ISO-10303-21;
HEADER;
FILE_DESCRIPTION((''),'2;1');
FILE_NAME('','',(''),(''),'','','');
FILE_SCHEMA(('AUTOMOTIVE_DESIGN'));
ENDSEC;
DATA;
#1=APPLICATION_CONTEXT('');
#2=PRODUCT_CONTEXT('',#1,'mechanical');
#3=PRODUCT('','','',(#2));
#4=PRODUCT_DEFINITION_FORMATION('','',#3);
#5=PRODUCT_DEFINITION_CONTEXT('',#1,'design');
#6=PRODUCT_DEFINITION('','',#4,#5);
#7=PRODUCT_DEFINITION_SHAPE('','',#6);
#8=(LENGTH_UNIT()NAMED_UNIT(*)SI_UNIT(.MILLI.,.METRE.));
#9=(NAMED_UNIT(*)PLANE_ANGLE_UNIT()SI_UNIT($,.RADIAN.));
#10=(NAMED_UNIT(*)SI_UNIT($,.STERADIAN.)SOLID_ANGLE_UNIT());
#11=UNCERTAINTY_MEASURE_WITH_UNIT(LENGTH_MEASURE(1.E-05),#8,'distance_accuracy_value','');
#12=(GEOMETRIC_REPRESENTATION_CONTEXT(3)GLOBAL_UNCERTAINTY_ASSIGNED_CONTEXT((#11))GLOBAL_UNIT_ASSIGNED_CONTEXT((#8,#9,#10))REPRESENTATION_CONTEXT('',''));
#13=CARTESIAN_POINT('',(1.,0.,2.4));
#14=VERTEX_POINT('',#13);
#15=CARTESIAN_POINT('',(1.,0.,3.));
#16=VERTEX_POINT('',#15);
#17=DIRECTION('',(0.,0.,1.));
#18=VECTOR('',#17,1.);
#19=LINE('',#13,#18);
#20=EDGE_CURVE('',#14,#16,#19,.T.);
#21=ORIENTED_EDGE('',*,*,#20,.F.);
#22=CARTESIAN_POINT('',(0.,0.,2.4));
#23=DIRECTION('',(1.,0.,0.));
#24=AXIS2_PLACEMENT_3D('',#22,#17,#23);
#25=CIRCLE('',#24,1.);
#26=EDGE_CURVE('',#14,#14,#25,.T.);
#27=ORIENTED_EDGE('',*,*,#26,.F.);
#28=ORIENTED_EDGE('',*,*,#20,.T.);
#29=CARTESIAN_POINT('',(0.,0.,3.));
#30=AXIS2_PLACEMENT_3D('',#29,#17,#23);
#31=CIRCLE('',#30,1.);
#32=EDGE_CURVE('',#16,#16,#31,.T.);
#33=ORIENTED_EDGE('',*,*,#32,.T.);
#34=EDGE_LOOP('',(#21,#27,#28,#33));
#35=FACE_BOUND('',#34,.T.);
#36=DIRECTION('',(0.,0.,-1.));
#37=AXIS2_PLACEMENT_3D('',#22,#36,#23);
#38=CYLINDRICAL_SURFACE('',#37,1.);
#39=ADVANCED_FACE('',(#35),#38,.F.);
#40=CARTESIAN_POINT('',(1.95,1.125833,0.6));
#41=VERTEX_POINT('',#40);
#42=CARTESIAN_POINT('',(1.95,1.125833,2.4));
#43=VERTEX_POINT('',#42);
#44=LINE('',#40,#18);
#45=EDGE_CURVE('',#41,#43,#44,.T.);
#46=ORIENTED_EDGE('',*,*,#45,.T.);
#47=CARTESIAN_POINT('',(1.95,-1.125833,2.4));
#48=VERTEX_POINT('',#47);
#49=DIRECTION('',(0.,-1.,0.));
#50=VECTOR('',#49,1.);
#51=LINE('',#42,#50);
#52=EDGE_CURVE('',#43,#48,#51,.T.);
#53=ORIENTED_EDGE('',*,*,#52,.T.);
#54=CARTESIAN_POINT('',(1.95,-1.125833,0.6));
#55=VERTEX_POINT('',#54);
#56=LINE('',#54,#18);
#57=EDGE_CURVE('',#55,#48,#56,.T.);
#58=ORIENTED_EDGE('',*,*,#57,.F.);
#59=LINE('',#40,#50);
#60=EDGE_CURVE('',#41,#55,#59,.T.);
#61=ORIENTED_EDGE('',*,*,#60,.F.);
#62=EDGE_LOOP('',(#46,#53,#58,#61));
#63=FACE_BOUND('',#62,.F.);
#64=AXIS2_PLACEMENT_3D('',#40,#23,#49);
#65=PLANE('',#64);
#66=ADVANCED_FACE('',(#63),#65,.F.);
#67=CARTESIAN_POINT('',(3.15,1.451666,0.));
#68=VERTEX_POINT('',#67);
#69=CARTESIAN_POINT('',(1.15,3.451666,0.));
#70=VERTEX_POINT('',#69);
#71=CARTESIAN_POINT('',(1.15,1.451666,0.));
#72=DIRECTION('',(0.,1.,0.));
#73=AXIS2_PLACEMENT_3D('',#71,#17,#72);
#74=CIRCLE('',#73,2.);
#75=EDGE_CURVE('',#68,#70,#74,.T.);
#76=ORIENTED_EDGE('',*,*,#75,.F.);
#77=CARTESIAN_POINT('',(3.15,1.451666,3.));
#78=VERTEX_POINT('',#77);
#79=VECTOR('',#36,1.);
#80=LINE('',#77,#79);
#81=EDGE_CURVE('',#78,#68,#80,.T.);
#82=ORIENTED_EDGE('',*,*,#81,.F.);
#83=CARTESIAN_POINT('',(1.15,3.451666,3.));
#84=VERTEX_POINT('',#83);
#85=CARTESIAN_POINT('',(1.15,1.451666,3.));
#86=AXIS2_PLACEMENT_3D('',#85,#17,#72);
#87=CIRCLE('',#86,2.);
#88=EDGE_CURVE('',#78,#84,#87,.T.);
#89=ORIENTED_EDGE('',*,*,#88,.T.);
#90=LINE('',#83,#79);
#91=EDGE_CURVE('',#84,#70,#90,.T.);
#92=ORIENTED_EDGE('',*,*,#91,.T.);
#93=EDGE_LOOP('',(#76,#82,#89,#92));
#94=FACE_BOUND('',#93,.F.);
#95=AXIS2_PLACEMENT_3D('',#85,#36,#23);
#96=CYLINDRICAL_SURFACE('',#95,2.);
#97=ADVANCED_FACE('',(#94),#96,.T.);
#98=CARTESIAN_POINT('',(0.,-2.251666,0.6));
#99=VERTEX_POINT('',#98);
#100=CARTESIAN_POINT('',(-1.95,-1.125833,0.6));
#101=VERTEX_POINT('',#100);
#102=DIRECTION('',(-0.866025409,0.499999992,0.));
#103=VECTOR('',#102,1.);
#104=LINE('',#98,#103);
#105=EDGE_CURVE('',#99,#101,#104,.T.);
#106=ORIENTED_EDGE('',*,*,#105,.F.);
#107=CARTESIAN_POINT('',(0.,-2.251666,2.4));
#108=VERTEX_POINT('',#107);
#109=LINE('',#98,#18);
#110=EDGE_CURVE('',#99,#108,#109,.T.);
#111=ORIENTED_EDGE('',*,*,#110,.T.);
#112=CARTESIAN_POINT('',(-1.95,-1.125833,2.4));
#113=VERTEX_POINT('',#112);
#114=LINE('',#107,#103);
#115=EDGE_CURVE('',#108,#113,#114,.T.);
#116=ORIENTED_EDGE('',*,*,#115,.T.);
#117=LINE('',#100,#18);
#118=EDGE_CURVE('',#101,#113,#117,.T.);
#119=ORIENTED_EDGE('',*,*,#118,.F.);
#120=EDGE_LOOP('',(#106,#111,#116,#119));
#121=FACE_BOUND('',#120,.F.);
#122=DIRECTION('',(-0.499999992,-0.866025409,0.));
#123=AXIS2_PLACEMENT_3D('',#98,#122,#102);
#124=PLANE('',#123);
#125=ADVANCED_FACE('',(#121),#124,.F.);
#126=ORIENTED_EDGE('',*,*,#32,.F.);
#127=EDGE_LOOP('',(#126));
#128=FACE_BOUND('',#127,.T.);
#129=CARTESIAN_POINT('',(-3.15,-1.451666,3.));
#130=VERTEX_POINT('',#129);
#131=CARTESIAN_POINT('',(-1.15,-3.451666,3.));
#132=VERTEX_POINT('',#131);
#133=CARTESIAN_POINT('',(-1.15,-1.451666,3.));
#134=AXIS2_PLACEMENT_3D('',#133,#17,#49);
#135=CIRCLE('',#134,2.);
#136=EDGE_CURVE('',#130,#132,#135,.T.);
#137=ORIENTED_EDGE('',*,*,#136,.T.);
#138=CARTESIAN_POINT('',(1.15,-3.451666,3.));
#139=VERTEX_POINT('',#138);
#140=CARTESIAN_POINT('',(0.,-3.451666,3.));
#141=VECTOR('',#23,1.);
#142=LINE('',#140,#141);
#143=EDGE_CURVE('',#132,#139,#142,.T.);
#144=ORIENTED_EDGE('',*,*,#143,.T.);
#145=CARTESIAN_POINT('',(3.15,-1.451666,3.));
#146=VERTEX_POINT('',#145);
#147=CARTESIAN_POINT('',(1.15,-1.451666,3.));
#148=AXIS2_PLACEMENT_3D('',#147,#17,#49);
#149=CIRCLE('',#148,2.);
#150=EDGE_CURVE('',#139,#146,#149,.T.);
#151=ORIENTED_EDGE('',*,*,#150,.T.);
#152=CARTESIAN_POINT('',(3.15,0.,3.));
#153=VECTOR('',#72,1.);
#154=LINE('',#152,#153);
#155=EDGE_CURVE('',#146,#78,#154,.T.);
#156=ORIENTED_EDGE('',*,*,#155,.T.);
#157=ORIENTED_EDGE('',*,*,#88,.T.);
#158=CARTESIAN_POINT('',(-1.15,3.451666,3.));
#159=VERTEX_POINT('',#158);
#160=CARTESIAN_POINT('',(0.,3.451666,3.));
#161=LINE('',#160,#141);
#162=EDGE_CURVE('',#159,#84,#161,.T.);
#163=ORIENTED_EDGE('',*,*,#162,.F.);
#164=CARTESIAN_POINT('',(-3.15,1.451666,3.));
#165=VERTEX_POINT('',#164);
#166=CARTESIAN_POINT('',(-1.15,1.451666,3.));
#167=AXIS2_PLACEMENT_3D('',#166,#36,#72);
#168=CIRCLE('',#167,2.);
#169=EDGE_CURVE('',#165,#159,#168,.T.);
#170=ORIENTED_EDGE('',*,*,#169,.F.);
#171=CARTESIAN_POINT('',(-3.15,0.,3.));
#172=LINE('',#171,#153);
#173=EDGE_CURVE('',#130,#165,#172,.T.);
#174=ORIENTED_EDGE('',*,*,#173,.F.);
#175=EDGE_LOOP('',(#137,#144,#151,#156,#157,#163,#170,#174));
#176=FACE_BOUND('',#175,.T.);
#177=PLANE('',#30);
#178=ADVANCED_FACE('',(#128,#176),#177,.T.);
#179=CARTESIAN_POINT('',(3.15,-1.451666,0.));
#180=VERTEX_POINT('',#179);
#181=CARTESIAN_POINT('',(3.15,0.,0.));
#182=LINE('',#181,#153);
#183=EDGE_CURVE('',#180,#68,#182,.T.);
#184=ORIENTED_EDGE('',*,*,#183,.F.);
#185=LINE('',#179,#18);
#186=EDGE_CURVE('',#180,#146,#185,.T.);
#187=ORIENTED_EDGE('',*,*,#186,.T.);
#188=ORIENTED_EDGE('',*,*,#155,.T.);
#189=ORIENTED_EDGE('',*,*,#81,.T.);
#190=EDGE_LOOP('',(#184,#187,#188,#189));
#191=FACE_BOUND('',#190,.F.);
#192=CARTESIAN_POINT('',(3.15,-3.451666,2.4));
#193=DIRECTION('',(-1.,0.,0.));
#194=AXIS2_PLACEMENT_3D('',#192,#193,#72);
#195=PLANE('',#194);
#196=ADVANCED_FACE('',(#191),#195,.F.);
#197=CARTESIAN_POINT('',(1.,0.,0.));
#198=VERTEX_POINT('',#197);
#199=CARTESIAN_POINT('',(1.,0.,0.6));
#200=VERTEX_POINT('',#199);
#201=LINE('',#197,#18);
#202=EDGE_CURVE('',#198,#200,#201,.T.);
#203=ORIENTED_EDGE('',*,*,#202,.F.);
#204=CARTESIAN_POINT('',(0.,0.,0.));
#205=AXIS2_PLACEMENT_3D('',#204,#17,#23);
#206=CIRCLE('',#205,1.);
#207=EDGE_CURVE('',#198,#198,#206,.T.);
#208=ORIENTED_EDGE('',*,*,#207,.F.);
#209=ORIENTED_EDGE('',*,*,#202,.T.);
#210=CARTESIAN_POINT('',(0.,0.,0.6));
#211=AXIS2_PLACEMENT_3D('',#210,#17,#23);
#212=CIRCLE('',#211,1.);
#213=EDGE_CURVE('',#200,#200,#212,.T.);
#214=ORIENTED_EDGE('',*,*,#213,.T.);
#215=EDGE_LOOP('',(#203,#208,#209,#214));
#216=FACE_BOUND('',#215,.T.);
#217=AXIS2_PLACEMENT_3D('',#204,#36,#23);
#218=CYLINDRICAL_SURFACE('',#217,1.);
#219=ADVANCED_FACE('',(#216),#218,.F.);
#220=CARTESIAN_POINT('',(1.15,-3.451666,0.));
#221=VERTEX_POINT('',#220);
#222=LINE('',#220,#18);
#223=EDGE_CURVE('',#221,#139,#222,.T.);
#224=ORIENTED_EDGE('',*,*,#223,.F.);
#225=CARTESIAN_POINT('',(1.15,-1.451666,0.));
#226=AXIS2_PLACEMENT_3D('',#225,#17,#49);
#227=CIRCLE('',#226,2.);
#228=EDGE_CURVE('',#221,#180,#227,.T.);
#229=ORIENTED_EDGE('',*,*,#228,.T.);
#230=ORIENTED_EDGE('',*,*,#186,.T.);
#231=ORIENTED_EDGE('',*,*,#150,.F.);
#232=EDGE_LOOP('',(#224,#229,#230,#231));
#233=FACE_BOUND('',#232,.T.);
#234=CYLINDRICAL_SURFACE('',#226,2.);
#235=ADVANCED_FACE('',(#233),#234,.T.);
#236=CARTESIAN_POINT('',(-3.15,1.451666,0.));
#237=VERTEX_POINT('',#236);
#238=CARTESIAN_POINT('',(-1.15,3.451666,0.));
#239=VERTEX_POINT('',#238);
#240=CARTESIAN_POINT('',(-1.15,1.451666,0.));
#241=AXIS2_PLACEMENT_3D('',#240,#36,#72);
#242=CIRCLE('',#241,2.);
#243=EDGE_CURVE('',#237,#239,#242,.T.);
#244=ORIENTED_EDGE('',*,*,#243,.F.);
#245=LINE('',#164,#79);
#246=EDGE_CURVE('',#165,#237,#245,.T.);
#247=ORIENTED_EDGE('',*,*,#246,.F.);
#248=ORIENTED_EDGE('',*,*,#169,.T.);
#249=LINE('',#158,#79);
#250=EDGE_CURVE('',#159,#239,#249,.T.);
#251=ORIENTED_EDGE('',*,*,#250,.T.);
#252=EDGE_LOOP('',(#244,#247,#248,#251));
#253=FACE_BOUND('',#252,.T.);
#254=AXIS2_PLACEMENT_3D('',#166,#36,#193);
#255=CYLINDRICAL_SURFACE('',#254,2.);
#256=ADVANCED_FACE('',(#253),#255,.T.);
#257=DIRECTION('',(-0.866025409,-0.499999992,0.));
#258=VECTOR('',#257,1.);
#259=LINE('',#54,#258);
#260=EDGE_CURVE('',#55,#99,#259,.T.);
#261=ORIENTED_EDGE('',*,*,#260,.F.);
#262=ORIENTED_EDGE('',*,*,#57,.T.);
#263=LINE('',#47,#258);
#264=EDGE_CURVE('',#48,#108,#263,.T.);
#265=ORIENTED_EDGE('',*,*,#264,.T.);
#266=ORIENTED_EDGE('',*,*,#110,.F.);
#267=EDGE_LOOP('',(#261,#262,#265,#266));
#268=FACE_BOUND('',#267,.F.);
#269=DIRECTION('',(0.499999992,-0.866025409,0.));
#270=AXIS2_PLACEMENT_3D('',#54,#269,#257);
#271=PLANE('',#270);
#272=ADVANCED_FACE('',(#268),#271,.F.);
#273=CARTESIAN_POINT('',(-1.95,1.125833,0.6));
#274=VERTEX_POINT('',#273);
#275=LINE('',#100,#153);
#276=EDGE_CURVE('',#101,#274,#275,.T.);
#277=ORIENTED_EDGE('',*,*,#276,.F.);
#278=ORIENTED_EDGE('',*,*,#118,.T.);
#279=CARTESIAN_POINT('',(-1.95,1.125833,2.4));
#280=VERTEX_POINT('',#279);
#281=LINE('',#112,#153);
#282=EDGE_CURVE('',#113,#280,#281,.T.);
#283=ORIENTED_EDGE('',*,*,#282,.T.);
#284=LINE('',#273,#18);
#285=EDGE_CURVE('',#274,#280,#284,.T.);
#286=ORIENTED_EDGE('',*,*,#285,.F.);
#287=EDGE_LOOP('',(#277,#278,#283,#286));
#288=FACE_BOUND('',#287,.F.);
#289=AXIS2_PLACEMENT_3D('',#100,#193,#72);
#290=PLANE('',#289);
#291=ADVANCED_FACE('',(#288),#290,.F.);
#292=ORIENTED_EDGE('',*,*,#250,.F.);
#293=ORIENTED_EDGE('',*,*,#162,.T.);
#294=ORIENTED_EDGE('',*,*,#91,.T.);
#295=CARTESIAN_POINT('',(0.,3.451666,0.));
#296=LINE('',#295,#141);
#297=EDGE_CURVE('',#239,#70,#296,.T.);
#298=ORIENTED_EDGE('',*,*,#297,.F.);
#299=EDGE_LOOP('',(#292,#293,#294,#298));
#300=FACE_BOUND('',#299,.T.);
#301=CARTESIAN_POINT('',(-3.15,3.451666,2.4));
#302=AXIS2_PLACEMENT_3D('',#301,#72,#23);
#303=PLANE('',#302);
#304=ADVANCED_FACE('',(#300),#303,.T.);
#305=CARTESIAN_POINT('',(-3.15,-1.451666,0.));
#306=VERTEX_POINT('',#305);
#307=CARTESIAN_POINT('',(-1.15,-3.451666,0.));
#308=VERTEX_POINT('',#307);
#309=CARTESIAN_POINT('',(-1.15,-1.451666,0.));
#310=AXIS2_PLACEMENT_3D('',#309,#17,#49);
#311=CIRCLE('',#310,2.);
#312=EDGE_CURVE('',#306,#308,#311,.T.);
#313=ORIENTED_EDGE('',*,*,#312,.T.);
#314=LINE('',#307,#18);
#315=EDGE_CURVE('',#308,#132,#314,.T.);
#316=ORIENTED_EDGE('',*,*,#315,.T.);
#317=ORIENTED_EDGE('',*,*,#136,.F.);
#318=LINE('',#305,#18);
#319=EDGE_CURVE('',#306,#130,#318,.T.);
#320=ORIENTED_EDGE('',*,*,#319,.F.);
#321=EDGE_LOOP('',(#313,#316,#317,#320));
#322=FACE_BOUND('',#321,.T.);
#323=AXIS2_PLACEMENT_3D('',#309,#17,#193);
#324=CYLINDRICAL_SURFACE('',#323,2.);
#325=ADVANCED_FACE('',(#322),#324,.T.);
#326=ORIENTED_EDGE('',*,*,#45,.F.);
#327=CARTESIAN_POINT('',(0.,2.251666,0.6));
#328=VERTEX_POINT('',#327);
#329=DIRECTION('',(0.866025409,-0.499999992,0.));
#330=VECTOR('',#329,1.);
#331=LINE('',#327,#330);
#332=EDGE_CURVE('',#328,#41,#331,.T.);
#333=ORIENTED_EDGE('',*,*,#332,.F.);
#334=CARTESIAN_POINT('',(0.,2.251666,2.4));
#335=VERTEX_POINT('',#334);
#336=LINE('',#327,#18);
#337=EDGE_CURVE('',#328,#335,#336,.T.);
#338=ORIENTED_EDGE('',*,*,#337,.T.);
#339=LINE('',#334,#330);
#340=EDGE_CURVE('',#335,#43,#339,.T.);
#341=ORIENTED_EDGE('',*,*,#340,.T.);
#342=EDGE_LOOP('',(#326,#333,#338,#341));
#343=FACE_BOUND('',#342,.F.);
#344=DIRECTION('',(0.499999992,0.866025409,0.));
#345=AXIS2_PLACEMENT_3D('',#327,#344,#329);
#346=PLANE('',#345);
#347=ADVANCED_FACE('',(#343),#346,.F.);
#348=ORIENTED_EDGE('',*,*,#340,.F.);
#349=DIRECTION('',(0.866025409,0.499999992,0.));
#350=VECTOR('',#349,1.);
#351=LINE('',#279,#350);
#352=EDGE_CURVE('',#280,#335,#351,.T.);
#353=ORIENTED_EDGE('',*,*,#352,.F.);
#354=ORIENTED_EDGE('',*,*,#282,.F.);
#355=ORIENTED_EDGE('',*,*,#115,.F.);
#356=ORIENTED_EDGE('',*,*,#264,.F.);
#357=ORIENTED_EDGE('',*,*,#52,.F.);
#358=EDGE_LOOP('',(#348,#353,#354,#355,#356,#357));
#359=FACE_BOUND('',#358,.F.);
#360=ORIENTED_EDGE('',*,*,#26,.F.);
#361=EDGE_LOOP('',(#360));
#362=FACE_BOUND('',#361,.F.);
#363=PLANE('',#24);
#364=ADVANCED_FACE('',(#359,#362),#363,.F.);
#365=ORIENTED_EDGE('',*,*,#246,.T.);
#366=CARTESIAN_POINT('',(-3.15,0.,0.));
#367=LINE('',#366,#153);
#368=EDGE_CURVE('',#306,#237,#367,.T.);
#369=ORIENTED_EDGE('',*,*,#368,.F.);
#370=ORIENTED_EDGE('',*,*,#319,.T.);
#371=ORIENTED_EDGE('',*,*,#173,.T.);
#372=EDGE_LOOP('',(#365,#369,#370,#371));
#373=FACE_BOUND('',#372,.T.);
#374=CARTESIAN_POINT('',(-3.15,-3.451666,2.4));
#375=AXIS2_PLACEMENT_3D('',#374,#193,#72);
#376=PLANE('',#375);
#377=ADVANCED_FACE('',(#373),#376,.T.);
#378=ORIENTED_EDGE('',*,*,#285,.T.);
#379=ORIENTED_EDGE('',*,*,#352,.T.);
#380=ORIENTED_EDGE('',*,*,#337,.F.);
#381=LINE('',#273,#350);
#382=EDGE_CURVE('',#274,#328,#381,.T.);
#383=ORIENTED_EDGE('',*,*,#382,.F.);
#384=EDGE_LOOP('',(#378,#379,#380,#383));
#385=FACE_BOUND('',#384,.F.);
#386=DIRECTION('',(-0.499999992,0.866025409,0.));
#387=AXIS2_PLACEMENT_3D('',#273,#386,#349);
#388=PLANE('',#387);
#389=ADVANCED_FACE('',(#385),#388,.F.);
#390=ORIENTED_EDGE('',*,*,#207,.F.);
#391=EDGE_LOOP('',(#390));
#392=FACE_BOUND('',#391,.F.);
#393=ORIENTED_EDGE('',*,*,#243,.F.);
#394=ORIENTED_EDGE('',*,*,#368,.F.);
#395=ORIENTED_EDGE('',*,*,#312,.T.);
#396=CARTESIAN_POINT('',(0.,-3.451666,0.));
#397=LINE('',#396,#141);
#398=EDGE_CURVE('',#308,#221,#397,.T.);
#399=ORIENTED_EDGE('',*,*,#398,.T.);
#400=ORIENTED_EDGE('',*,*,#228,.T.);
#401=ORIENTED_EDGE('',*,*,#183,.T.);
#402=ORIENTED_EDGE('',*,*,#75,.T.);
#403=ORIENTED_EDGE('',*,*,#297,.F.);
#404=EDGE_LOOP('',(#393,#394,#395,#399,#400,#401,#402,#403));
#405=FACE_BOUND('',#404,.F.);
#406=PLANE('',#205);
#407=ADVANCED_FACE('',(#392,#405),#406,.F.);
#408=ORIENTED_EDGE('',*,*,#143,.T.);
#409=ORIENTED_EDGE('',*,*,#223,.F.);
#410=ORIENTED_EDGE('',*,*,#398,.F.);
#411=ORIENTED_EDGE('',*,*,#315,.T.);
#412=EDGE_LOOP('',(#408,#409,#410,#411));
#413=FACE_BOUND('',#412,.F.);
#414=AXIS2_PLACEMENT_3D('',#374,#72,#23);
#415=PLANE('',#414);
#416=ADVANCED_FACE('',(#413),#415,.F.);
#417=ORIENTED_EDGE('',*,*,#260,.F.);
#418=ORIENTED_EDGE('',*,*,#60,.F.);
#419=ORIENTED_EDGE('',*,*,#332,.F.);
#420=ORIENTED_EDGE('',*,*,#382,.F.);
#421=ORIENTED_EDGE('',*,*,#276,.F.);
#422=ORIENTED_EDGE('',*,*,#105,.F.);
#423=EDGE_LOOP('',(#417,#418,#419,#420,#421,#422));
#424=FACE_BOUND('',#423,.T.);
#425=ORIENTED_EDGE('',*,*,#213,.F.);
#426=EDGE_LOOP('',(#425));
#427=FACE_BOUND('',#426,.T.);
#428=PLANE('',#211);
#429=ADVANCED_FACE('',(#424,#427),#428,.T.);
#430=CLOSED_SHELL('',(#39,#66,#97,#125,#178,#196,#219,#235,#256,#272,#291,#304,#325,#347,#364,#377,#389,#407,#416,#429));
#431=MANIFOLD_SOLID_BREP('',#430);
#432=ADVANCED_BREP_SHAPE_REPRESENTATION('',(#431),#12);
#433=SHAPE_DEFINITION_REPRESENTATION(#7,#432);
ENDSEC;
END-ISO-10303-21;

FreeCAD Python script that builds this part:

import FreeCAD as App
import Part
import Sketcher
from FreeCAD import Vector
Q = App.Units.Quantity


def edges_at(feature, points):
    """Names of the edges that pass closest to the given points."""
    edges = feature.Shape.Edges
    near = lambda p: min(range(len(edges)), key=lambda i: edges[i].distToShape(Part.Vertex(*p))[0])
    return sorted({f"Edge{near(p) + 1}" for p in points})


def add_polygon(sketch, points):
    """Adds a closed chain of lines whose ends are joined by coincident constraints."""
    first, n = sketch.GeometryCount, len(points)
    for a, b in zip(points, points[1:] + points[:1]):
        sketch.addGeometry(Part.LineSegment(App.Vector(*a, 0), App.Vector(*b, 0)), False)
    for i in range(n):
        sketch.addConstraint(Sketcher.Constraint("Coincident", first + i, 2, first + (i + 1) % n, 1))

doc = App.newDocument("Part")
body = doc.addObject("PartDesign::Body", "Body")

# Sketch on XY plane
sketch1 = body.newObject("Sketcher::SketchObject", "Sketch")
sketch1.AttachmentSupport = (doc.getObject("XY_Plane"), [""])
sketch1.MapMode = "FlatFace"
add_polygon(sketch1, [(-3.1, 3.5), (-3.1, -3.5), (3.1, -3.5), (3.1, 3.5)])  # lines 0-3
sketch1.addGeometry(Part.Circle(Vector(0, 0, 0), Vector(0, 0, 1), 1), False)  # 4
sketch1.addConstraint([
    Sketcher.Constraint("Vertical", 0),
    Sketcher.Constraint("Horizontal", 1),
    Sketcher.Constraint("Vertical", 2),
    Sketcher.Constraint("Horizontal", 3),
    Sketcher.Constraint("Coincident", 4, 3, -1, 1),
    Sketcher.Constraint("Symmetric", 0, 2, 2, 2, -1, 1),
    Sketcher.Constraint("Diameter", 4, 2.0),
    Sketcher.Constraint("DistanceX", 1, 1, 1, 2, 6.3),
    Sketcher.Constraint("DistanceY", 0, 2, 0, 1, 6.903332),
])
pad1 = body.newObject("PartDesign::Pad", "Pad")
pad1.Profile = sketch1
pad1.Length = 0.6

# Sketch on XY plane
sketch2 = body.newObject("Sketcher::SketchObject", "Sketch001")
sketch2.AttachmentSupport = (doc.getObject("XY_Plane"), [""])
sketch2.MapMode = "FlatFace"
sketch2.AttachmentOffset = App.Placement(Vector(0, 0, 0.6), App.Rotation())
add_polygon(sketch2, [(-3.1, 3.5), (-3.1, -3.5), (3.1, -3.5), (3.1, 3.5)])  # lines 0-3
add_polygon(sketch2, [(-1.9, -1.1), (-1.9, 1.1), (0, 2.3), (1.9, 1.1), (1.9, -1.1), (0, -2.3)])  # lines 4-9
sketch2.addConstraint([
    Sketcher.Constraint("Vertical", 0),
    Sketcher.Constraint("Horizontal", 1),
    Sketcher.Constraint("Vertical", 2),
    Sketcher.Constraint("Horizontal", 3),
    Sketcher.Constraint("Vertical", 4),
    Sketcher.Constraint("Vertical", 7),
    Sketcher.Constraint("Symmetric", 0, 2, 2, 2, -1, 1),
    Sketcher.Constraint("Symmetric", 4, 2, 7, 2, -1, 1),
    Sketcher.Constraint("Symmetric", 5, 2, 8, 2, -1, 1),
    Sketcher.Constraint("PointOnObject", 5, 2, -2),
    Sketcher.Constraint("Parallel", 6, 9),
    Sketcher.Constraint("Horizontal", 4, 2, 6, 2),
    Sketcher.Constraint("Angle", 5, Q("29.999999 deg")),
    Sketcher.Constraint("DistanceX", 1, 1, 1, 2, 6.3),
    Sketcher.Constraint("DistanceX", 3, 2, 4, 2, 1.2),
    Sketcher.Constraint("DistanceY", 5, 2, 2, 2, 1.2),
    Sketcher.Constraint("DistanceY", 0, 2, 0, 1, 6.903332),
])
pad2 = body.newObject("PartDesign::Pad", "Pad001")
pad2.Profile = sketch2
pad2.Length = 1.8

# Sketch on XY plane
sketch3 = body.newObject("Sketcher::SketchObject", "Sketch002")
sketch3.AttachmentSupport = (doc.getObject("XY_Plane"), [""])
sketch3.MapMode = "FlatFace"
sketch3.AttachmentOffset = App.Placement(Vector(0, 0, 2.4), App.Rotation())
add_polygon(sketch3, [(-3.1, 3.5), (-3.1, -3.5), (3.1, -3.5), (3.1, 3.5)])  # lines 0-3
sketch3.addGeometry(Part.Circle(Vector(0, 0, 0), Vector(0, 0, 1), 1), False)  # 4
sketch3.addConstraint([
    Sketcher.Constraint("Vertical", 0),
    Sketcher.Constraint("Horizontal", 1),
    Sketcher.Constraint("Vertical", 2),
    Sketcher.Constraint("Horizontal", 3),
    Sketcher.Constraint("Coincident", 4, 3, -1, 1),
    Sketcher.Constraint("Symmetric", 0, 2, 2, 2, -1, 1),
    Sketcher.Constraint("Diameter", 4, 2.0),
    Sketcher.Constraint("DistanceX", 1, 1, 1, 2, 6.3),
    Sketcher.Constraint("DistanceY", 0, 2, 0, 1, 6.903332),
])
pad3 = body.newObject("PartDesign::Pad", "Pad002")
pad3.Profile = sketch3
pad3.Length = 0.6
doc.recompute()

fillet = body.newObject("PartDesign::Fillet", "Fillet")
fillet.Base = (pad3, edges_at(pad3, [
    (3.15, -3.452, 1.5),
    (3.15, 3.452, 1.5),
    (-3.15, 3.452, 1.5),
    (-3.15, -3.452, 1.5),
]))
fillet.Radius = 2

doc.recompute()
